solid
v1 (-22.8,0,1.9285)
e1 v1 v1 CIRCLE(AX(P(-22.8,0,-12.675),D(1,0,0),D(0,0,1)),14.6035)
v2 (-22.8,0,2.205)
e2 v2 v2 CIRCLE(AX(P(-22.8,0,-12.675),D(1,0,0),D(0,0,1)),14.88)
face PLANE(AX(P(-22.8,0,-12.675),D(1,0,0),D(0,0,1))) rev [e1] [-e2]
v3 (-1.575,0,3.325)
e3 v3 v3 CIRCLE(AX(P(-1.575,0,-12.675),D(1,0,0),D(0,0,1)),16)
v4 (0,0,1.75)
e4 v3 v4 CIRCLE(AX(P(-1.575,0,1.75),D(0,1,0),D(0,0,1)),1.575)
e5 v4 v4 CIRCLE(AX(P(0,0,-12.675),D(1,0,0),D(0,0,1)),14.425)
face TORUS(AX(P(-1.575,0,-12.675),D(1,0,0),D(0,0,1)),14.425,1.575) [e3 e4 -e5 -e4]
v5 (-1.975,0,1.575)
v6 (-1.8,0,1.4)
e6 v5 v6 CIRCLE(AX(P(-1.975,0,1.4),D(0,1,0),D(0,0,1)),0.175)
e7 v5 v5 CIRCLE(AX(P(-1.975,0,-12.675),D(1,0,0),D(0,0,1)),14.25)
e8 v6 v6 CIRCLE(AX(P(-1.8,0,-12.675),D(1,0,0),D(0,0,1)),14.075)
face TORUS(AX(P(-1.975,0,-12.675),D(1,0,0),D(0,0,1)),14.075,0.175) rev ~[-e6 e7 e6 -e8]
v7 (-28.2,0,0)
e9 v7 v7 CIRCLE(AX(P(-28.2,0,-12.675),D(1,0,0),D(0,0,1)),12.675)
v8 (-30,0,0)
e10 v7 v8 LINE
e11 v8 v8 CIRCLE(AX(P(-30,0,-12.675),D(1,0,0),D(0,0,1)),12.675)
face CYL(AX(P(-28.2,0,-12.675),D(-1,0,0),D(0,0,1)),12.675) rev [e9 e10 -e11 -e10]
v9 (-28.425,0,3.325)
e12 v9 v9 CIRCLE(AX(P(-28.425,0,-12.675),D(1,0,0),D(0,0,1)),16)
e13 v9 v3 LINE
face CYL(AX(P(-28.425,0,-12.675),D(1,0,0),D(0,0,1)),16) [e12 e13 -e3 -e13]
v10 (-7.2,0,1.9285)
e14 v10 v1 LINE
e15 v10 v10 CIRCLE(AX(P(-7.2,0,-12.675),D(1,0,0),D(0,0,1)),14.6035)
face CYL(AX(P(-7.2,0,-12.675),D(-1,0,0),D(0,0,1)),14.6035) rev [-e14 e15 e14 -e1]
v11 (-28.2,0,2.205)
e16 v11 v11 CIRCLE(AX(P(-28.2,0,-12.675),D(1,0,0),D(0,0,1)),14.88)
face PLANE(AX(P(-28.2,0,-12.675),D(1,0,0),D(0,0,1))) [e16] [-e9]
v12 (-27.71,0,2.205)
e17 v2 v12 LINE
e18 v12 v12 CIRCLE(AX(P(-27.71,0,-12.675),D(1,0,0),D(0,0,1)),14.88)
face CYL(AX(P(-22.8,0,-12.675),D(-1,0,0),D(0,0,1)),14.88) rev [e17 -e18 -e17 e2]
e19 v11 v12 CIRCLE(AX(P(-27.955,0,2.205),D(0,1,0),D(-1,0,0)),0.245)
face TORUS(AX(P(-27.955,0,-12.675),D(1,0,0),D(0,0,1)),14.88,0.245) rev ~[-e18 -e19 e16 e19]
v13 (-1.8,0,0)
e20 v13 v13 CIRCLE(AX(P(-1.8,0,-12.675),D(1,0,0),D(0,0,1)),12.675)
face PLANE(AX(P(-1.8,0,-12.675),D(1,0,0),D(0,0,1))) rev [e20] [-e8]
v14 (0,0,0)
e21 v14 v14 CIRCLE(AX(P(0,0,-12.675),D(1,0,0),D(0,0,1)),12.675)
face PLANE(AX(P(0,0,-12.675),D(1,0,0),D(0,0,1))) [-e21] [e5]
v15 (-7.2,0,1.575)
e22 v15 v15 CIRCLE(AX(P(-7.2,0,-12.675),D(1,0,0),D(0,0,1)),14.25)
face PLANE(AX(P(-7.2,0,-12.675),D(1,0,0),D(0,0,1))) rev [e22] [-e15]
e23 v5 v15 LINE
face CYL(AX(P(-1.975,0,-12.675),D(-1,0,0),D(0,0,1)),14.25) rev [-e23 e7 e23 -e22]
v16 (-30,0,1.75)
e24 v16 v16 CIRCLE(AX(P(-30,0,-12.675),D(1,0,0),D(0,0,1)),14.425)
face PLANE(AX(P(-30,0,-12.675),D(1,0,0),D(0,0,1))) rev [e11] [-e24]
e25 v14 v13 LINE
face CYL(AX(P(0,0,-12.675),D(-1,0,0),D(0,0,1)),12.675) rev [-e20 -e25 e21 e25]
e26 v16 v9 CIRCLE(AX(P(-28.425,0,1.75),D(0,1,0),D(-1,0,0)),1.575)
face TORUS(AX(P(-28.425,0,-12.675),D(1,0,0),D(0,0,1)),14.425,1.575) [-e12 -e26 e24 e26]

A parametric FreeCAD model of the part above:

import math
import FreeCAD as App
import Part
import Sketcher
from FreeCAD import Vector
Q = App.Units.Quantity

doc = App.newDocument("Part")
body = doc.addObject("PartDesign::Body", "Body")

sketch1 = body.newObject("Sketcher::SketchObject", "Sketch")
sketch1.AttachmentSupport = (doc.getObject("XZ_Plane"), [""])
sketch1.MapMode = "FlatFace"
sketch1.addGeometry(Part.ArcOfCircle(Part.Circle(Vector(-1.975, 1.4, 0), Vector(0, 0, 1), 0.175), math.radians(0), math.radians(90)), False)
sketch1.addGeometry(Part.LineSegment(Vector(-1.975, 1.575, 0), Vector(-7.2, 1.575, 0)), False)
sketch1.addGeometry(Part.LineSegment(Vector(-7.2, 1.575, 0), Vector(-7.2, 1.9285, 0)), False)
sketch1.addGeometry(Part.LineSegment(Vector(-7.2, 1.9285, 0), Vector(-22.8, 1.9285, 0)), False)
sketch1.addGeometry(Part.LineSegment(Vector(-22.8, 1.9285, 0), Vector(-22.8, 2.205, 0)), False)
sketch1.addGeometry(Part.LineSegment(Vector(-22.8, 2.205, 0), Vector(-27.71, 2.205, 0)), False)
sketch1.addGeometry(Part.ArcOfCircle(Part.Circle(Vector(-27.955, 2.205, 0), Vector(0, 0, 1), 0.245), math.radians(0), math.radians(180)), False)
sketch1.addGeometry(Part.LineSegment(Vector(-28.2, 2.205, 0), Vector(-28.2, 0, 0)), False)
sketch1.addGeometry(Part.LineSegment(Vector(-28.2, 0, 0), Vector(-30, 0, 0)), False)
sketch1.addGeometry(Part.LineSegment(Vector(-30, 0, 0), Vector(-30, 1.75, 0)), False)
sketch1.addGeometry(Part.ArcOfCircle(Part.Circle(Vector(-28.425, 1.75, 0), Vector(0, 0, 1), 1.575), math.radians(90), math.radians(180)), False)
sketch1.addGeometry(Part.LineSegment(Vector(-28.425, 3.325, 0), Vector(-1.575, 3.325, 0)), False)
sketch1.addGeometry(Part.ArcOfCircle(Part.Circle(Vector(-1.575, 1.75, 0), Vector(0, 0, 1), 1.575), math.radians(0), math.radians(90)), False)
sketch1.addGeometry(Part.LineSegment(Vector(0, 1.75, 0), Vector(0, 0, 0)), False)
sketch1.addGeometry(Part.LineSegment(Vector(0, 0, 0), Vector(-1.8, 0, 0)), False)
sketch1.addGeometry(Part.LineSegment(Vector(-1.8, 0, 0), Vector(-1.8, 1.4, 0)), False)
sketch1.addGeometry(Part.LineSegment(Vector(-30, -12.675, 0), Vector(0, -12.675, 0)), True)
sketch1.addConstraint(Sketcher.Constraint("Tangent", 0, 2, 1, 1))
sketch1.addConstraint(Sketcher.Constraint("Coincident", 1, 2, 2, 1))
sketch1.addConstraint(Sketcher.Constraint("Coincident", 2, 2, 3, 1))
sketch1.addConstraint(Sketcher.Constraint("Coincident", 3, 2, 4, 1))
sketch1.addConstraint(Sketcher.Constraint("Coincident", 4, 2, 5, 1))
sketch1.addConstraint(Sketcher.Constraint("Coincident", 5, 2, 6, 1))
sketch1.addConstraint(Sketcher.Constraint("Tangent", 6, 2, 7, 1))
sketch1.addConstraint(Sketcher.Constraint("Coincident", 7, 2, 8, 1))
sketch1.addConstraint(Sketcher.Constraint("Coincident", 8, 2, 9, 1))
sketch1.addConstraint(Sketcher.Constraint("Tangent", 9, 2, 10, 2))
sketch1.addConstraint(Sketcher.Constraint("Tangent", 10, 1, 11, 1))
sketch1.addConstraint(Sketcher.Constraint("Tangent", 11, 2, 12, 2))
sketch1.addConstraint(Sketcher.Constraint("Tangent", 12, 1, 13, 1))
sketch1.addConstraint(Sketcher.Constraint("Coincident", 13, 2, 14, 1))
sketch1.addConstraint(Sketcher.Constraint("Coincident", 14, 2, 15, 1))
sketch1.addConstraint(Sketcher.Constraint("Tangent", 15, 2, 0, 1))
sketch1.addConstraint(Sketcher.Constraint("Horizontal", 1))
sketch1.addConstraint(Sketcher.Constraint("Vertical", 2))
sketch1.addConstraint(Sketcher.Constraint("Horizontal", 3))
sketch1.addConstraint(Sketcher.Constraint("Vertical", 4))
sketch1.addConstraint(Sketcher.Constraint("Horizontal", 5))
sketch1.addConstraint(Sketcher.Constraint("Vertical", 7))
sketch1.addConstraint(Sketcher.Constraint("Horizontal", 8))
sketch1.addConstraint(Sketcher.Constraint("Vertical", 9))
sketch1.addConstraint(Sketcher.Constraint("Horizontal", 11))
sketch1.addConstraint(Sketcher.Constraint("Vertical", 13))
sketch1.addConstraint(Sketcher.Constraint("Horizontal", 14))
sketch1.addConstraint(Sketcher.Constraint("Vertical", 15))
sketch1.addConstraint(Sketcher.Constraint("Horizontal", 16))
sketch1.addConstraint(Sketcher.Constraint("Coincident", 13, 2, -1, 1))
sketch1.addConstraint(Sketcher.Constraint("Equal", 10, 12))
sketch1.addConstraint(Sketcher.Constraint("PointOnObject", 7, 2, -1))
sketch1.addConstraint(Sketcher.Constraint("PointOnObject", 16, 2, -2))
sketch1.addConstraint(Sketcher.Constraint("Horizontal", 6, 3, 4, 2))
sketch1.addConstraint(Sketcher.Constraint("Vertical", 9, 2, 16, 1))
sketch1.addConstraint(Sketcher.Constraint("Equal", 8, 14))
sketch1.addConstraint(Sketcher.Constraint("DistanceX", 16, 1, 16, 2, Q("30 mm")))
sketch1.addConstraint(Sketcher.Constraint("DistanceX", 3, 2, 3, 1, Q("15.6 mm")))
sketch1.addConstraint(Sketcher.Constraint("DistanceX", 8, 2, 8, 1, Q("1.8 mm")))
sketch1.addConstraint(Sketcher.Constraint("DistanceY", 15, 1, 15, 2, Q("1.4 mm")))
sketch1.addConstraint(Sketcher.Constraint("Radius", 0, Q("0.175 mm")))
sketch1.addConstraint(Sketcher.Constraint("Radius", 6, Q("0.245 mm")))
sketch1.addConstraint(Sketcher.Constraint("Radius", 10, Q("1.575 mm")))
sketch1.addConstraint(Sketcher.Constraint("DistanceX", 5, 2, 5, 1, Q("4.91 mm")))
sketch1.addConstraint(Sketcher.Constraint("DistanceY", 9, 1, 9, 2, Q("1.75 mm")))
sketch1.addConstraint(Sketcher.Constraint("DistanceY", 7, 2, 7, 1, Q("2.205 mm")))
sketch1.addConstraint(Sketcher.Constraint("DistanceY", 2, 1, 2, 2, Q("0.3535 mm")))
sketch1.addConstraint(Sketcher.Constraint("DistanceY", 16, 1, -1, 1, Q("12.675 mm")))
revolution = body.newObject("PartDesign::Revolution", "Revolution")
revolution.Profile = sketch1
revolution.ReferenceAxis = (sketch1, ["Axis0"])
revolution.Angle = 360

doc.recompute()
